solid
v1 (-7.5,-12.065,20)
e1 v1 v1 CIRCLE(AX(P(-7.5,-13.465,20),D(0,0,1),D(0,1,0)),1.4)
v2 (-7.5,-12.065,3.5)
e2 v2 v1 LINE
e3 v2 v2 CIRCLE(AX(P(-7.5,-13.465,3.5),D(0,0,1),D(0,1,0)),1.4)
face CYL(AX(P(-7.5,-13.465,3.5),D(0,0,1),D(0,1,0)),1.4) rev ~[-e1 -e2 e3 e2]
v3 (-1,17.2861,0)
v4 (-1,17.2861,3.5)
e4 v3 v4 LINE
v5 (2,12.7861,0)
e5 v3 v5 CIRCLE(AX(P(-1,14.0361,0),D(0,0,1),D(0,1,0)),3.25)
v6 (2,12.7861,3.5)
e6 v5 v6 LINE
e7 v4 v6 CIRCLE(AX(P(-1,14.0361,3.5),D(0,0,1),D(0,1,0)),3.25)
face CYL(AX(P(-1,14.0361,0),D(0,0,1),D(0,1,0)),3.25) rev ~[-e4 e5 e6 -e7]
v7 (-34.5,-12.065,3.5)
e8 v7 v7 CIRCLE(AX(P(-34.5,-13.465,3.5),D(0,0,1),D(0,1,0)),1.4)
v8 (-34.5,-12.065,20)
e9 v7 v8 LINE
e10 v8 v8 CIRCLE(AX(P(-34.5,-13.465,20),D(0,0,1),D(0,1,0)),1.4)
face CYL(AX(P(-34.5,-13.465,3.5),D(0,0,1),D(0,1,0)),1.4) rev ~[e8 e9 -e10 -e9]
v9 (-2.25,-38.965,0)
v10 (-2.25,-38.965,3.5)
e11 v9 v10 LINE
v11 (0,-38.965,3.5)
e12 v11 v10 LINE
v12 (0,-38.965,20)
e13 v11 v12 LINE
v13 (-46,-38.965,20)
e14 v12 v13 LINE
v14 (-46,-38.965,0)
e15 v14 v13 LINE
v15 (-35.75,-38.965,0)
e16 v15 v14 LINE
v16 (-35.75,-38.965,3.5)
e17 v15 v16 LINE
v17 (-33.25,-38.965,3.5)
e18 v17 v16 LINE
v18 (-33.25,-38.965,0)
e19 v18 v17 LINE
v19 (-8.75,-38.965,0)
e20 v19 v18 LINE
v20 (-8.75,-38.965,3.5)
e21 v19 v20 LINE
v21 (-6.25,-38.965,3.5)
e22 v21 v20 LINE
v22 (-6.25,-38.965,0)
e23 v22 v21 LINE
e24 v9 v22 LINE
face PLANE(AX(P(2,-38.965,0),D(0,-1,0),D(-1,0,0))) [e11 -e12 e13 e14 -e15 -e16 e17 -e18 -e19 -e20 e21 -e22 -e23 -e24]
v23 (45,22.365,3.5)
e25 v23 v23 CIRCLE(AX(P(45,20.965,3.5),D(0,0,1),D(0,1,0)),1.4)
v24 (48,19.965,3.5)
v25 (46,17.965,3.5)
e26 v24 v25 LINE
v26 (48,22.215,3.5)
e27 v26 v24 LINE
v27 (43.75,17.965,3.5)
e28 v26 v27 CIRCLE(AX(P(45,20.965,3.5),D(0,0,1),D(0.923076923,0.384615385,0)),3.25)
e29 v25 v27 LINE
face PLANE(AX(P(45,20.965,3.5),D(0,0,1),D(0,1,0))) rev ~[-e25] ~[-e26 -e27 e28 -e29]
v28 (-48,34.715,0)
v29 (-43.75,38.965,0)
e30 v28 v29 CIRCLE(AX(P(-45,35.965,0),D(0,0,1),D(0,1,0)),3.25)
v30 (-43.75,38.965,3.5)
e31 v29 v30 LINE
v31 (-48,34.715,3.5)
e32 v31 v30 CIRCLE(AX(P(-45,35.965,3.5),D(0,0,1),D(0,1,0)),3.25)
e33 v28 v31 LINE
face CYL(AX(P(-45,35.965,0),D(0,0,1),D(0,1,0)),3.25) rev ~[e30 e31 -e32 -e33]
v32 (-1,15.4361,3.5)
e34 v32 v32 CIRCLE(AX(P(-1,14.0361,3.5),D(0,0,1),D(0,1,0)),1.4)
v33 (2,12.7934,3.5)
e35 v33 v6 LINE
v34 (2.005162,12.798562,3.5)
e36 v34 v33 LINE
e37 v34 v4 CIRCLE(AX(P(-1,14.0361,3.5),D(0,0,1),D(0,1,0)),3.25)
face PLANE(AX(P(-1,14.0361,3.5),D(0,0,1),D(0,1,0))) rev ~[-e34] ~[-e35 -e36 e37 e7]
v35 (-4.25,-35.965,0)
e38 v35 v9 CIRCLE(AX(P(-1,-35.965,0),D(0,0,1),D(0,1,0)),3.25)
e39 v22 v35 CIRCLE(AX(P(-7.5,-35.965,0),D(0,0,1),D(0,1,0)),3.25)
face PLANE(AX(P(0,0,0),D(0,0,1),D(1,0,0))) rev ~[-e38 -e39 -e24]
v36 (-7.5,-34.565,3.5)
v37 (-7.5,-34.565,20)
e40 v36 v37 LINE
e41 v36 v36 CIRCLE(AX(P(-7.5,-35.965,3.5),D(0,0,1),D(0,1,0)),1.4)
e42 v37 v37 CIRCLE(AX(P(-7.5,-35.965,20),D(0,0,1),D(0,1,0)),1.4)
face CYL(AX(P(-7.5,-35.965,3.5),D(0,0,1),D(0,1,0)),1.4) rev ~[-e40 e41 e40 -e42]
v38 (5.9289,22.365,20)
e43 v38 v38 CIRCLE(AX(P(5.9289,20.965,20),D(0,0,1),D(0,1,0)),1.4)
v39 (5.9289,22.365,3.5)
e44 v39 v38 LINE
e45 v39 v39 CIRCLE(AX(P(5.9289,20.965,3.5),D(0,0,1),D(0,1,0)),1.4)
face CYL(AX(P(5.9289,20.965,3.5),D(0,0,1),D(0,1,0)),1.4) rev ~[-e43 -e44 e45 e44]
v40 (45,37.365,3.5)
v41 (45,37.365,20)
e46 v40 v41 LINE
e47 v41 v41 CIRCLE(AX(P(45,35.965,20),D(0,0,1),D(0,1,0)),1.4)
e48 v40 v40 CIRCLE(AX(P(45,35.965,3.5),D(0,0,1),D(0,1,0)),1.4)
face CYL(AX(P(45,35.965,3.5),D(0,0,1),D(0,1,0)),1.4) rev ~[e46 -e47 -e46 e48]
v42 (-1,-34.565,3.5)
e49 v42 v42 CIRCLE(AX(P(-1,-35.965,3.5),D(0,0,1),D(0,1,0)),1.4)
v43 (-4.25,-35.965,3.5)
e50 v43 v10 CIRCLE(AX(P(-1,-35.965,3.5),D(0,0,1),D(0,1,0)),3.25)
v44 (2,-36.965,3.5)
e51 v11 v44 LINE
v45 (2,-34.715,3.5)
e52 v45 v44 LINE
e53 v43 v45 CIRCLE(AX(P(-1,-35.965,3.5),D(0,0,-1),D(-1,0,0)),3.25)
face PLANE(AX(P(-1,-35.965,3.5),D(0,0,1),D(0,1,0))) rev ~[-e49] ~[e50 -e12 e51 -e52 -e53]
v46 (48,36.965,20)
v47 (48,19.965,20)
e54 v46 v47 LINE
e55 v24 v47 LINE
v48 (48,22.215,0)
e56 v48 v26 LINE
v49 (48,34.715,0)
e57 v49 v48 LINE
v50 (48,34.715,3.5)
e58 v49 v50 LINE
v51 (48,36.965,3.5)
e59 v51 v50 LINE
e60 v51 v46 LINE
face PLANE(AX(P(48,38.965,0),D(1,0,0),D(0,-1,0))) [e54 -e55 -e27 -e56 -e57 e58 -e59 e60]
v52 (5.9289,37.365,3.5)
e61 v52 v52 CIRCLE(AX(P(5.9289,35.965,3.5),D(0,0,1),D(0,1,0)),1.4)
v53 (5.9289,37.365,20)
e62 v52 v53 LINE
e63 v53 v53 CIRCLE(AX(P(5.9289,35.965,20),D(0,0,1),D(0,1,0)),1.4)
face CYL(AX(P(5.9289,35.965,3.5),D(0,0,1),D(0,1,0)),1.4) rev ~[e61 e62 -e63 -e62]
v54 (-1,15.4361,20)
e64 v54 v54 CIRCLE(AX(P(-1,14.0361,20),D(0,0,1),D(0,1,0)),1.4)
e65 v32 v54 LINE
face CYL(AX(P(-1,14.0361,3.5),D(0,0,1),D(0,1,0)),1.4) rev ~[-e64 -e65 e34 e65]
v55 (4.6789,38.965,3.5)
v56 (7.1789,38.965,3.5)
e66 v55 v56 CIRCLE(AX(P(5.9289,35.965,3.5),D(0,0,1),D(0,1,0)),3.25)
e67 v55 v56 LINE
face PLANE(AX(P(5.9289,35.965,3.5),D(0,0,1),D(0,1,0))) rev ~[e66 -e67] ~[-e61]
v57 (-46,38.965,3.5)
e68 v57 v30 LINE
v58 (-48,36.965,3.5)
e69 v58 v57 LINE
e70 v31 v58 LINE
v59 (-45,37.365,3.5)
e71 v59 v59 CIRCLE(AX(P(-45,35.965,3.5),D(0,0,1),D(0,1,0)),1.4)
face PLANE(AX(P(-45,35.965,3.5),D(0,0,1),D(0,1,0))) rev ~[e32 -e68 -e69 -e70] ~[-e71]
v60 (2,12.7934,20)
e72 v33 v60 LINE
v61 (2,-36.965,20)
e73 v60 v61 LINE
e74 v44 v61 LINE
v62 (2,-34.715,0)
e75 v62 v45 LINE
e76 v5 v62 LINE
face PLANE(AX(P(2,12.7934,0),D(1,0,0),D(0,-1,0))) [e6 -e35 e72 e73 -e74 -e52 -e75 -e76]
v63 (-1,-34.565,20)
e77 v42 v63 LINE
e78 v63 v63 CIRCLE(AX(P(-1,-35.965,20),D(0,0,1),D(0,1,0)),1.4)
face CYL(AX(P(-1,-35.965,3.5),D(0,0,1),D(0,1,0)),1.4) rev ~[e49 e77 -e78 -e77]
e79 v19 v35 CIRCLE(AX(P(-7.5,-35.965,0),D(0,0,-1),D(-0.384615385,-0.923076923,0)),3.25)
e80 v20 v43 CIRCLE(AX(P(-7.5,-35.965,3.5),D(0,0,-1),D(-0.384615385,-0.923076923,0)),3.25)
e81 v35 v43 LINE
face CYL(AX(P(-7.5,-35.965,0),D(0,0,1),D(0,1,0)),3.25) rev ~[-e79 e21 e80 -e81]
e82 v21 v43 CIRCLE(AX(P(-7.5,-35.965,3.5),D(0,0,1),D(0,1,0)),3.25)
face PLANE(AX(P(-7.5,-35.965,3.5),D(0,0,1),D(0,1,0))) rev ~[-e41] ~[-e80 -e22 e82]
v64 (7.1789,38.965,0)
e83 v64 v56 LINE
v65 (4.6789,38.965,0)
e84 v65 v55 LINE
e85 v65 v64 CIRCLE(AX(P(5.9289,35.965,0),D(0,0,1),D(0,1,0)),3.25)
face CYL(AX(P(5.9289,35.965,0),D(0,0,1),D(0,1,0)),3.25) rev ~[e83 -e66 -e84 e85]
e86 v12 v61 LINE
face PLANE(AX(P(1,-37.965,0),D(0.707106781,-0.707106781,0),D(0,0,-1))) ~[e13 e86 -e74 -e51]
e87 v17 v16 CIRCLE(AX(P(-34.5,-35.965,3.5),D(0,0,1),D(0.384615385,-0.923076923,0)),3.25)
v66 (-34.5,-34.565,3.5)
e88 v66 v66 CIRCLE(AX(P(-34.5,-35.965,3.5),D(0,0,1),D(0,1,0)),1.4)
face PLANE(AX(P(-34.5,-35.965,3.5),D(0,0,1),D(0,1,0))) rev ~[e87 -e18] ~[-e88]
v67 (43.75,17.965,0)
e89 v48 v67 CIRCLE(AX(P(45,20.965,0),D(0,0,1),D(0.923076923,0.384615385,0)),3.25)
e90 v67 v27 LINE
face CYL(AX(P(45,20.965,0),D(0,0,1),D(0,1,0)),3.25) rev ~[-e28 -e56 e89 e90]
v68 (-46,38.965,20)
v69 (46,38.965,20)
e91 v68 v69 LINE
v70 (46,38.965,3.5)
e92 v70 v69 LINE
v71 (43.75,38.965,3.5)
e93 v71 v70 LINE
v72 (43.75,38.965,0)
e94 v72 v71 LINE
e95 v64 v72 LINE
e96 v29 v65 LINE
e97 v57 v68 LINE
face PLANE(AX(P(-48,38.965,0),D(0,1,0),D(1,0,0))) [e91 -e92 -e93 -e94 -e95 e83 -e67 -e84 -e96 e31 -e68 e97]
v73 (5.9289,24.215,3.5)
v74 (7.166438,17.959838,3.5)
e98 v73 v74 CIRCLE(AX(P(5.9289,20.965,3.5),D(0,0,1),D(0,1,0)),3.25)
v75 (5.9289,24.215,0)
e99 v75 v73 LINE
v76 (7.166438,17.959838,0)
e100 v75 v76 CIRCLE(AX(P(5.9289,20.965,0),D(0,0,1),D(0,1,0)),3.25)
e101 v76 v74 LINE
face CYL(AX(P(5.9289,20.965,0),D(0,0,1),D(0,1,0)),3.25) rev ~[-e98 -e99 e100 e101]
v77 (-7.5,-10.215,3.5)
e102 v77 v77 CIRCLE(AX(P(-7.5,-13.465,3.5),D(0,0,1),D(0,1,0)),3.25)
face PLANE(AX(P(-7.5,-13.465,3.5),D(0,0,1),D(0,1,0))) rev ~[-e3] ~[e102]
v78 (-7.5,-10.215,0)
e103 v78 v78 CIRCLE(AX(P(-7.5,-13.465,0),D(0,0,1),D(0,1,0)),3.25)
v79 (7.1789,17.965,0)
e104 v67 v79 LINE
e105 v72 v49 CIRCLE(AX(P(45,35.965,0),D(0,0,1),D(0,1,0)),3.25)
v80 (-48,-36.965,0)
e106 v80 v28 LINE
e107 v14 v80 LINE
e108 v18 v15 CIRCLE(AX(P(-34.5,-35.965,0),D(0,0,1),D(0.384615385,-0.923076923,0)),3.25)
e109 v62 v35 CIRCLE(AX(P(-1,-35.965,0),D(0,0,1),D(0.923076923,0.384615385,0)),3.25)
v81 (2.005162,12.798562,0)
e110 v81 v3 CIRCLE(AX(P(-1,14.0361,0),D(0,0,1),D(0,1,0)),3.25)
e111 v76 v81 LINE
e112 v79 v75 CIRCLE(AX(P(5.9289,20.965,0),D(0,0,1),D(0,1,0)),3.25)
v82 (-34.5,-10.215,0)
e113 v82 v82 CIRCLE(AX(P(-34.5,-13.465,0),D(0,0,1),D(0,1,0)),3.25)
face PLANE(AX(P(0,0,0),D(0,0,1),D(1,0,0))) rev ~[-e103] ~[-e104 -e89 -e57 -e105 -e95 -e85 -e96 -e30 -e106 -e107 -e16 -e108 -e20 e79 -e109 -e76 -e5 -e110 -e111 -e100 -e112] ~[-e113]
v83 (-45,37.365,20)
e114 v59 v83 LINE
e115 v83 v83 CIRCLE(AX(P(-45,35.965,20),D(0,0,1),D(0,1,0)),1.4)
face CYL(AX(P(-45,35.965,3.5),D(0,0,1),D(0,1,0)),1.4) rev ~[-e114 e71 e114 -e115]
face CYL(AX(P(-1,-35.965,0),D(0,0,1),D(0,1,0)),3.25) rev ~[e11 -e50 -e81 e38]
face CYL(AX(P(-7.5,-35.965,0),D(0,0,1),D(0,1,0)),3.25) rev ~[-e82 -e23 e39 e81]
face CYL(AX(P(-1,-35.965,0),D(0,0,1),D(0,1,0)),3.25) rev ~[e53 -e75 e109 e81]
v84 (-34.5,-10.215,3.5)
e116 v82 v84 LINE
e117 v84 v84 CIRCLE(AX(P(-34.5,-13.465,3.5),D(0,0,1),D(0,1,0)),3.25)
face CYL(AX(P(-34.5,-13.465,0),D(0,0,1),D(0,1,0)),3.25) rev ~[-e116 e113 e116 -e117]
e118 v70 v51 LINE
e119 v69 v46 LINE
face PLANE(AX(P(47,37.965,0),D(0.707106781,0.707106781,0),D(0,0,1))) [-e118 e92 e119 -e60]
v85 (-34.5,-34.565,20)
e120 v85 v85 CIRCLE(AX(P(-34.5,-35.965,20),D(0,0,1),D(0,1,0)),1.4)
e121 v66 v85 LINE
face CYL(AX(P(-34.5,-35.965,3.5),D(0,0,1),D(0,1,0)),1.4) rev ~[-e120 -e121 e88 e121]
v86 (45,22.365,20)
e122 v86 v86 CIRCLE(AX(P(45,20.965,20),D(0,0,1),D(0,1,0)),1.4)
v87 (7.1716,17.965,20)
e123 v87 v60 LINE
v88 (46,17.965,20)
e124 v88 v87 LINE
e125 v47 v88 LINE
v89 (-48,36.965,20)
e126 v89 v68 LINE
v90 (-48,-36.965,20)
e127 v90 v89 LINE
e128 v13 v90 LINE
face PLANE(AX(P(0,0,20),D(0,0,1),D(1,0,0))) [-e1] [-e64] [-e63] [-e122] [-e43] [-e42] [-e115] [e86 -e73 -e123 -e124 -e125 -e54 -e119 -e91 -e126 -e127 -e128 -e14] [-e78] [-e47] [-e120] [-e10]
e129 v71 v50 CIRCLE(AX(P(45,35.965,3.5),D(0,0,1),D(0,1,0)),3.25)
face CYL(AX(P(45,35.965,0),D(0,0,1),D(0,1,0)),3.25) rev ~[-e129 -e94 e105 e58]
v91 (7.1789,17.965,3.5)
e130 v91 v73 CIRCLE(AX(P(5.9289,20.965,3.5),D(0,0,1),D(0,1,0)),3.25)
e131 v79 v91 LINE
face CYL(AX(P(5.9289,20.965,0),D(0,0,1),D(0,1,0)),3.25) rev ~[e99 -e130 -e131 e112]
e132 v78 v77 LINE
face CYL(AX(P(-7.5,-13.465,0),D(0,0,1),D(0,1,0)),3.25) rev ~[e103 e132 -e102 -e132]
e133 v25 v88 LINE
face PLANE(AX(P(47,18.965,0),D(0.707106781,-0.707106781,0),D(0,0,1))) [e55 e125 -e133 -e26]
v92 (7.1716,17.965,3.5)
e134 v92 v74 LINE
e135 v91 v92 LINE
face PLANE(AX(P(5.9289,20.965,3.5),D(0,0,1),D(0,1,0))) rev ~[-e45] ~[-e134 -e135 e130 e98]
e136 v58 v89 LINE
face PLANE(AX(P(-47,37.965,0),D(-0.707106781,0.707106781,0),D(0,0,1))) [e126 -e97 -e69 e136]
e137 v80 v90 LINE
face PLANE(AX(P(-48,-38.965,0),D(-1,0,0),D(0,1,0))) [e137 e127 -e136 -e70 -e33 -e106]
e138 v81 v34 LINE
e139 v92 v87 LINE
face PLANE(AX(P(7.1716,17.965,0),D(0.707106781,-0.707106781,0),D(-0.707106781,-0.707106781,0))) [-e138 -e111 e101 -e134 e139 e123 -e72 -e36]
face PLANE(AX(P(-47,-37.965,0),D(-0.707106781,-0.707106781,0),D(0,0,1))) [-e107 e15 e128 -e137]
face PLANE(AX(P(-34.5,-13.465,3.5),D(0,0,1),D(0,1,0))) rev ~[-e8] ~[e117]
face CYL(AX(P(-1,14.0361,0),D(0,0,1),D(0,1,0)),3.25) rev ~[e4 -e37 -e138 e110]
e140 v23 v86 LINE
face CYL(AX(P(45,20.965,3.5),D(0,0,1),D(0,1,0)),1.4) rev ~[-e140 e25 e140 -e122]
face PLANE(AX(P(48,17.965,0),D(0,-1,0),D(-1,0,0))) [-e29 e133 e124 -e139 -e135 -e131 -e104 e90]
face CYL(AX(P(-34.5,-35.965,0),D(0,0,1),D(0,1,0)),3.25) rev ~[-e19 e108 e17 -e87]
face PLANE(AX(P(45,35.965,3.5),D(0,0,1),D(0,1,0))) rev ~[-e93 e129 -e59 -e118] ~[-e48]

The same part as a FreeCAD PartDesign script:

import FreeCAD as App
import Part
import Sketcher
from FreeCAD import Vector
Q = App.Units.Quantity


def edges_at(feature, points):
    """Names of the edges that pass closest to the given points."""
    edges = feature.Shape.Edges
    near = lambda p: min(range(len(edges)), key=lambda i: edges[i].distToShape(Part.Vertex(*p))[0])
    return sorted({f"Edge{near(p) + 1}" for p in points})

doc = App.newDocument("Part")
params = doc.addObject("Spreadsheet::Sheet", "Params")
for row, (alias, value) in enumerate([
    ("sketch1_width", "50 mm"),
    ("sketch1_width2", "96 mm"),
    ("sketch1_height", "21 mm"),
    ("sketch1_height2", "77.93 mm"),
    ("pad1_length", "20 mm"),
    ("chamfer_size", "2 mm"),
    ("sketch2_diameter", "2.8 mm"),
    ("hole_diameter", "2.8 mm"),
    ("hole_depth", "20 mm"),
    ("hole_cbore_diameter", "6.5 mm"),
    ("hole_cbore_depth", "3.5 mm"),
], start=1):
    params.set(f"A{row}", alias)
    params.set(f"B{row}", "=" + value)
    params.setAlias(f"B{row}", alias)

body = doc.addObject("PartDesign::Body", "Body")

# Sketch on XY plane
sketch1 = body.newObject("Sketcher::SketchObject", "Sketch")
sketch1.AttachmentSupport = (doc.getObject("XY_Plane"), [""])
sketch1.MapMode = "FlatFace"
sketch1.addGeometry([
    Part.LineSegment(Vector(-48, -38.965, 0), Vector(2, -38.965, 0)),  # 0
    Part.LineSegment(Vector(2, -38.965, 0), Vector(2, 12.7934, 0)),  # 1
    Part.LineSegment(Vector(2, 12.7934, 0), Vector(7.1716, 17.965, 0)),  # 2
    Part.LineSegment(Vector(7.1716, 17.965, 0), Vector(48, 17.965, 0)),  # 3
    Part.LineSegment(Vector(48, 17.965, 0), Vector(48, 38.965, 0)),  # 4
    Part.LineSegment(Vector(48, 38.965, 0), Vector(-48, 38.965, 0)),  # 5
    Part.LineSegment(Vector(-48, 38.965, 0), Vector(-48, -38.965, 0)),  # 6
], False)
sketch1.addConstraint([
    Sketcher.Constraint("Coincident", 0, 2, 1, 1),
    Sketcher.Constraint("Coincident", 1, 2, 2, 1),
    Sketcher.Constraint("Coincident", 2, 2, 3, 1),
    Sketcher.Constraint("Coincident", 3, 2, 4, 1),
    Sketcher.Constraint("Coincident", 4, 2, 5, 1),
    Sketcher.Constraint("Coincident", 5, 2, 6, 1),
    Sketcher.Constraint("Coincident", 6, 2, 0, 1),
    Sketcher.Constraint("Horizontal", 0),
    Sketcher.Constraint("Vertical", 1),
    Sketcher.Constraint("Horizontal", 3),
    Sketcher.Constraint("Vertical", 4),
    Sketcher.Constraint("Horizontal", 5),
    Sketcher.Constraint("Vertical", 6),
    Sketcher.Constraint("Symmetric", 4, 2, 6, 2, -1, 1),
    Sketcher.Constraint("DistanceX", 0, 1, 0, 2, 50.0),
    Sketcher.Constraint("DistanceX", 5, 2, 5, 1, 96.0),
    Sketcher.Constraint("DistanceY", 4, 1, 4, 2, 21.0),
    Sketcher.Constraint("Angle", 2, Q("45 deg")),
    Sketcher.Constraint("DistanceY", 6, 2, 6, 1, 77.93),
    Sketcher.Constraint("DistanceX", 3, 1, 3, 2, 40.8284),
])
sketch1.setExpression("Constraints[14]", "Params.sketch1_width")
sketch1.setExpression("Constraints[15]", "Params.sketch1_width2")
sketch1.setExpression("Constraints[16]", "Params.sketch1_height")
sketch1.setExpression("Constraints[18]", "Params.sketch1_height2")
pad1 = body.newObject("PartDesign::Pad", "Pad")
pad1.Profile = sketch1
pad1.setExpression("Length", "Params.pad1_length")
doc.recompute()

chamfer = body.newObject("PartDesign::Chamfer", "Chamfer")
chamfer.Base = (pad1, edges_at(pad1, [
    (-48, 38.965, 10),
    (-48, -38.965, 10),
    (48, 38.965, 10),
    (48, 17.965, 10),
    (2, -38.965, 10),
]))
chamfer.setExpression("Size", "Params.chamfer_size")

# Sketch on XY plane
sketch2 = body.newObject("Sketcher::SketchObject", "Sketch001")
sketch2.AttachmentSupport = (doc.getObject("XY_Plane"), [""])
sketch2.MapMode = "FlatFace"
sketch2.addGeometry([
    Part.Circle(Vector(45, 35.965, 0), Vector(0, 0, 1), 1.4),  # 0
    Part.Circle(Vector(5.9289, 35.965, 0), Vector(0, 0, 1), 1.4),  # 1
    Part.Circle(Vector(5.9289, 20.965, 0), Vector(0, 0, 1), 1.4),  # 2
    Part.Circle(Vector(-1, 14.0361, 0), Vector(0, 0, 1), 1.4),  # 3
    Part.Circle(Vector(45, 20.965, 0), Vector(0, 0, 1), 1.4),  # 4
    Part.Circle(Vector(-45, 35.965, 0), Vector(0, 0, 1), 1.4),  # 5
    Part.Circle(Vector(-7.5, -13.465, 0), Vector(0, 0, 1), 1.4),  # 6
    Part.Circle(Vector(-34.5, -13.465, 0), Vector(0, 0, 1), 1.4),  # 7
    Part.Circle(Vector(-34.5, -35.965, 0), Vector(0, 0, 1), 1.4),  # 8
    Part.Circle(Vector(-7.5, -35.965, 0), Vector(0, 0, 1), 1.4),  # 9
    Part.Circle(Vector(-1, -35.965, 0), Vector(0, 0, 1), 1.4),  # 10
], False)
sketch2.addConstraint([
    Sketcher.Constraint("Equal", 0, 1),
    Sketcher.Constraint("Equal", 1, 2),
    Sketcher.Constraint("Equal", 2, 3),
    Sketcher.Constraint("Equal", 3, 4),
    Sketcher.Constraint("Equal", 4, 5),
    Sketcher.Constraint("Equal", 5, 6),
    Sketcher.Constraint("Equal", 6, 7),
    Sketcher.Constraint("Equal", 7, 8),
    Sketcher.Constraint("Equal", 8, 9),
    Sketcher.Constraint("Equal", 9, 10),
    Sketcher.Constraint("Symmetric", 0, 3, 5, 3, -2),
    Sketcher.Constraint("Horizontal", 0, 3, 1, 3),
    Sketcher.Constraint("Horizontal", 2, 3, 4, 3),
    Sketcher.Constraint("Horizontal", 6, 3, 7, 3),
    Sketcher.Constraint("Horizontal", 8, 3, 9, 3),
    Sketcher.Constraint("Horizontal", 9, 3, 10, 3),
    Sketcher.Constraint("Vertical", 1, 3, 2, 3),
    Sketcher.Constraint("Vertical", 0, 3, 4, 3),
    Sketcher.Constraint("Vertical", 7, 3, 8, 3),
    Sketcher.Constraint("Vertical", 6, 3, 9, 3),
    Sketcher.Constraint("Vertical", 3, 3, 10, 3),
    Sketcher.Constraint("Diameter", 0, 2.8),
    Sketcher.Constraint("DistanceX", -1, 1, 0, 3, 45.0),
    Sketcher.Constraint("DistanceX", 3, 3, -1, 1, 1.0),
    Sketcher.Constraint("DistanceY", 2, 3, 1, 3, 15.0),
    Sketcher.Constraint("DistanceX", 7, 3, 6, 3, 27.0),
    Sketcher.Constraint("DistanceX", 6, 3, -1, 1, 7.5),
    Sketcher.Constraint("DistanceY", 8, 3, 7, 3, 22.5),
    Sketcher.Constraint("DistanceY", 6, 3, 2, 3, 34.43),
    Sketcher.Constraint("DistanceY", -1, 1, 0, 3, 35.965),
    Sketcher.Constraint("DistanceX", -1, 1, 1, 3, 5.929),
    Sketcher.Constraint("DistanceY", -1, 1, 3, 3, 14.036),
])
sketch2.setExpression("Constraints[21]", "Params.sketch2_diameter")
doc.recompute()
hole = body.newObject("PartDesign::Hole", "Hole")
hole.Profile = sketch2
hole.ThreadType = "None"
hole.setExpression("Diameter", "Params.hole_diameter")
hole.DepthType = "Dimension"
hole.setExpression("Depth", "Params.hole_depth")
hole.DrillPoint = "Flat"
hole.HoleCutType = "Counterbore"
hole.setExpression("HoleCutDiameter", "Params.hole_cbore_diameter")
hole.setExpression("HoleCutDepth", "Params.hole_cbore_depth")
hole.Reversed = True

doc.recompute()
